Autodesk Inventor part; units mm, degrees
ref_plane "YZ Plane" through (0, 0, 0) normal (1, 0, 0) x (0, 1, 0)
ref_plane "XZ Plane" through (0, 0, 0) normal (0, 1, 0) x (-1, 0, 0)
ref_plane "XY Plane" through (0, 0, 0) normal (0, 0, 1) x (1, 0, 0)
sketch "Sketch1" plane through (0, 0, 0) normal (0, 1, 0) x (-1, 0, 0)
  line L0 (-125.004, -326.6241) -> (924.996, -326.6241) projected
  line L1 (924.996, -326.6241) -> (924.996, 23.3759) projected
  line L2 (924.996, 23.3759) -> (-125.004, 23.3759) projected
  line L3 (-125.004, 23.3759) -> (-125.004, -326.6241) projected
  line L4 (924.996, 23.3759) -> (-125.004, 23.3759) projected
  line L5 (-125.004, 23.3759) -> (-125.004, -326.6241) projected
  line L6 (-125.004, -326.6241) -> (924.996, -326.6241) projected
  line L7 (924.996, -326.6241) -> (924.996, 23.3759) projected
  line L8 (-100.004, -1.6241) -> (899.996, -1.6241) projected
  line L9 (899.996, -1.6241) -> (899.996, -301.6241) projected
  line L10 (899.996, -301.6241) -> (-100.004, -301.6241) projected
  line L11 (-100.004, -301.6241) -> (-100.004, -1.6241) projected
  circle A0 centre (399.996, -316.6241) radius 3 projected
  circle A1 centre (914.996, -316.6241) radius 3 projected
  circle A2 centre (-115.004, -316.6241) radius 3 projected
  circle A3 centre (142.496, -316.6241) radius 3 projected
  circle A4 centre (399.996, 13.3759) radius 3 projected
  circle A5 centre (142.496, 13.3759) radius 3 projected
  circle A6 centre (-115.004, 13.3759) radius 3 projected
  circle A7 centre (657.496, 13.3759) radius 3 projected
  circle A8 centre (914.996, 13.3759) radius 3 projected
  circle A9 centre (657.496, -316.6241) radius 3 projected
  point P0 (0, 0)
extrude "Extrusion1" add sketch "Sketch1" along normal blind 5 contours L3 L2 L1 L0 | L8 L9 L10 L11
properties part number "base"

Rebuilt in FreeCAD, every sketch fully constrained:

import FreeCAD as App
import Part
import Sketcher

doc = App.newDocument("Part")
body = doc.addObject("PartDesign::Body", "Body")

sketch1 = doc.addObject("Sketcher::SketchObject", "Sketch")
body.addObject(sketch1)
sketch1.AttachmentSupport = (doc.XZ_Plane, [""])
sketch1.MapMode = "FlatFace"
sketch1.addGeometry([
    Part.LineSegment(App.Vector(125, 23.4, 0), App.Vector(125, -326.6, 0)),
    Part.LineSegment(App.Vector(125, -326.6, 0), App.Vector(-925, -326.6, 0)),
    Part.LineSegment(App.Vector(-925, -326.6, 0), App.Vector(-925, 23.4, 0)),
    Part.LineSegment(App.Vector(-925, 23.4, 0), App.Vector(125, 23.4, 0)),
    Part.Circle(App.Vector(115, -316.6, 0), App.Vector(0, 0, 1), 3),
    Part.Circle(App.Vector(-142.5, -316.6, 0), App.Vector(0, 0, 1), 3),
    Part.Circle(App.Vector(-400, -316.6, 0), App.Vector(0, 0, 1), 3),
    Part.Circle(App.Vector(-657.5, -316.6, 0), App.Vector(0, 0, 1), 3),
    Part.Circle(App.Vector(-915, -316.6, 0), App.Vector(0, 0, 1), 3),
    Part.Circle(App.Vector(115, 13.4, 0), App.Vector(0, 0, 1), 3),
    Part.Circle(App.Vector(-142.5, 13.4, 0), App.Vector(0, 0, 1), 3),
    Part.Circle(App.Vector(-400, 13.4, 0), App.Vector(0, 0, 1), 3),
    Part.Circle(App.Vector(-657.5, 13.4, 0), App.Vector(0, 0, 1), 3),
    Part.Circle(App.Vector(-915, 13.4, 0), App.Vector(0, 0, 1), 3),
], False)
sketch1.addConstraint([
    Sketcher.Constraint("Coincident", 0, 2, 1, 1),
    Sketcher.Constraint("Coincident", 1, 2, 2, 1),
    Sketcher.Constraint("Coincident", 2, 2, 3, 1),
    Sketcher.Constraint("Coincident", 3, 2, 0, 1),
    Sketcher.Constraint("Vertical", 0),
    Sketcher.Constraint("Horizontal", 1),
    Sketcher.Constraint("Vertical", 2),
    Sketcher.Constraint("Horizontal", 3),
    Sketcher.Constraint("Equal", 4, 5),
    Sketcher.Constraint("Equal", 5, 6),
    Sketcher.Constraint("Equal", 6, 7),
    Sketcher.Constraint("Equal", 7, 8),
    Sketcher.Constraint("Equal", 8, 9),
    Sketcher.Constraint("Equal", 9, 10),
    Sketcher.Constraint("Equal", 10, 11),
    Sketcher.Constraint("Equal", 11, 12),
    Sketcher.Constraint("Equal", 12, 13),
    Sketcher.Constraint("Horizontal", 4, 3, 5, 3),
    Sketcher.Constraint("Horizontal", 5, 3, 6, 3),
    Sketcher.Constraint("Horizontal", 6, 3, 7, 3),
    Sketcher.Constraint("Horizontal", 7, 3, 8, 3),
    Sketcher.Constraint("Horizontal", 9, 3, 10, 3),
    Sketcher.Constraint("Horizontal", 10, 3, 11, 3),
    Sketcher.Constraint("Horizontal", 11, 3, 12, 3),
    Sketcher.Constraint("Horizontal", 12, 3, 13, 3),
    Sketcher.Constraint("Vertical", 4, 3, 9, 3),
    Sketcher.Constraint("Vertical", 5, 3, 10, 3),
    Sketcher.Constraint("Vertical", 6, 3, 11, 3),
    Sketcher.Constraint("Vertical", 7, 3, 12, 3),
    Sketcher.Constraint("Vertical", 8, 3, 13, 3),
    Sketcher.Constraint("Diameter", 4, 6.0),
    Sketcher.Constraint("DistanceX", 1, 2, 1, 1, 1050.0),
    Sketcher.Constraint("DistanceY", 0, 2, 0, 1, 350.0),
    Sketcher.Constraint("DistanceX", 6, 3, 4, 3, 515.0),
    Sketcher.Constraint("DistanceX", 7, 3, 5, 3, 515.0),
    Sketcher.Constraint("DistanceX", 8, 3, 6, 3, 515.0),
    Sketcher.Constraint("DistanceY", 4, 3, 9, 3, 330.0),
    Sketcher.Constraint("DistanceX", 4, 3, 0, 2, 10.0),
    Sketcher.Constraint("DistanceY", 0, 2, 4, 3, 10.0),
    Sketcher.Constraint("DistanceX", 5, 3, 4, 3, 257.5),
    Sketcher.Constraint("DistanceX", -1, 1, 4, 3, 115.004),
    Sketcher.Constraint("DistanceY", 4, 3, -1, 1, 316.624),
])
pad1 = doc.addObject("PartDesign::Pad", "Pad")
body.addObject(pad1)
pad1.Profile = sketch1
pad1.Length = 5
pad1.Reversed = True

doc.recompute()
